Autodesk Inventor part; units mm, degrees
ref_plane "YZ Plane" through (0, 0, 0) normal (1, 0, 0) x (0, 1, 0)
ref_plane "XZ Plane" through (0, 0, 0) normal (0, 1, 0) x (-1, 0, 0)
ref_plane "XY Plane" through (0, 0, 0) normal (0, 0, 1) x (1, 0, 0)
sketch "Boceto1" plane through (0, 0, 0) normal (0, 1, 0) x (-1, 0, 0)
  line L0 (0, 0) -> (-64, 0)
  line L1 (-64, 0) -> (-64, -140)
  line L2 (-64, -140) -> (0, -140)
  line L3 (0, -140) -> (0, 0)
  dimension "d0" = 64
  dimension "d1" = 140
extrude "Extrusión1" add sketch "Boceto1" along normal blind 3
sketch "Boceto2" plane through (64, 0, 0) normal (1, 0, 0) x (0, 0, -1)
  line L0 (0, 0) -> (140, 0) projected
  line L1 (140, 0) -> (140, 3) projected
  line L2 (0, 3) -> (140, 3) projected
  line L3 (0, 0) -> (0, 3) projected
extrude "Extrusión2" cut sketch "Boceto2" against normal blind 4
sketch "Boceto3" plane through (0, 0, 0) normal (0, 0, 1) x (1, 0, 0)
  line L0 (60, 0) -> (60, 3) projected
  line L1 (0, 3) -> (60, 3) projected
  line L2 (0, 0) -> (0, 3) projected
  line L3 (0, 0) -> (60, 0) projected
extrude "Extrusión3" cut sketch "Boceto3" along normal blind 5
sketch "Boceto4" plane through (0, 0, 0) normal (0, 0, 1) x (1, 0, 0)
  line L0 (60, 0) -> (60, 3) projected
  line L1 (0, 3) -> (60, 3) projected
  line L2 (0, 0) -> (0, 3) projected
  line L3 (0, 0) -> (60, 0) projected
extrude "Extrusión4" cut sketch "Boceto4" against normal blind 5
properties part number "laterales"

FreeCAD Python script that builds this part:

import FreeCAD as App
import Part
import Sketcher

V = App.Vector


def add_polygon(sketch, points):
    """Adds a closed chain of lines whose ends are joined by coincident constraints."""
    first, n = sketch.GeometryCount, len(points)
    for a, b in zip(points, points[1:] + points[:1]):
        sketch.addGeometry(Part.LineSegment(App.Vector(*a, 0), App.Vector(*b, 0)), False)
    for i in range(n):
        sketch.addConstraint(Sketcher.Constraint("Coincident", first + i, 2, first + (i + 1) % n, 1))

doc = App.newDocument("Part")
params = doc.addObject("Spreadsheet::Sheet", "Params")
for row, (alias, value) in enumerate([
    ("sketch1_width", "64 mm"),
    ("sketch1_height", "140 mm"),
    ("pad1_length", "3 mm"),
    ("sketch2_width", "3 mm"),
    ("sketch2_height", "140 mm"),
    ("pocket1_length", "4 mm"),
    ("sketch3_width", "60 mm"),
    ("sketch3_height", "3 mm"),
    ("pocket2_length", "5 mm"),
    ("sketch4_width", "60 mm"),
    ("sketch4_height", "3 mm"),
    ("pocket3_length", "5 mm"),
], start=1):
    params.set(f"A{row}", alias)
    params.set(f"B{row}", "=" + value)
    params.setAlias(f"B{row}", alias)

body = doc.addObject("PartDesign::Body", "Body")

# Sketch on XZ plane
sketch1 = body.newObject("Sketcher::SketchObject", "Sketch")
sketch1.AttachmentSupport = (doc.getObject("XZ_Plane"), [""])
sketch1.MapMode = "FlatFace"
add_polygon(sketch1, [(0, -140), (0, 0), (64, 0), (64, -140)])  # lines 0-3
sketch1.addConstraint([
    Sketcher.Constraint("Vertical", 0),
    Sketcher.Constraint("Horizontal", 1),
    Sketcher.Constraint("Vertical", 2),
    Sketcher.Constraint("Horizontal", 3),
    Sketcher.Constraint("Coincident", 0, 2, -1, 1),
    Sketcher.Constraint("DistanceX", 1, 1, 1, 2, 64.0),
    Sketcher.Constraint("DistanceY", 0, 1, 0, 2, 140.0),
])
sketch1.setExpression("Constraints[9]", "Params.sketch1_width")
sketch1.setExpression("Constraints[10]", "Params.sketch1_height")
pad1 = body.newObject("PartDesign::Pad", "Pad")
pad1.Profile = sketch1
pad1.setExpression("Length", "Params.pad1_length")
pad1.Reversed = True

# Sketch on YZ plane
sketch2 = body.newObject("Sketcher::SketchObject", "Sketch001")
sketch2.AttachmentSupport = (doc.getObject("YZ_Plane"), [""])
sketch2.MapMode = "FlatFace"
sketch2.AttachmentOffset = App.Placement(V(0, 0, 64), App.Rotation())
add_polygon(sketch2, [(3, 0), (0, 0), (0, -140), (3, -140)])  # lines 0-3
sketch2.addConstraint([
    Sketcher.Constraint("Horizontal", 0),
    Sketcher.Constraint("Vertical", 1),
    Sketcher.Constraint("Horizontal", 2),
    Sketcher.Constraint("Vertical", 3),
    Sketcher.Constraint("Coincident", 0, 2, -1, 1),
    Sketcher.Constraint("DistanceX", 0, 2, 0, 1, 3.0),
    Sketcher.Constraint("DistanceY", 1, 2, 1, 1, 140.0),
])
sketch2.setExpression("Constraints[9]", "Params.sketch2_width")
sketch2.setExpression("Constraints[10]", "Params.sketch2_height")
pocket1 = body.newObject("PartDesign::Pocket", "Pocket")
pocket1.Profile = sketch2
pocket1.setExpression("Length", "Params.pocket1_length")

# Sketch on XY plane
sketch3 = body.newObject("Sketcher::SketchObject", "Sketch002")
sketch3.AttachmentSupport = (doc.getObject("XY_Plane"), [""])
sketch3.MapMode = "FlatFace"
add_polygon(sketch3, [(0, 0), (60, 0), (60, 3), (0, 3)])  # lines 0-3
sketch3.addConstraint([
    Sketcher.Constraint("Horizontal", 0),
    Sketcher.Constraint("Vertical", 1),
    Sketcher.Constraint("Horizontal", 2),
    Sketcher.Constraint("Vertical", 3),
    Sketcher.Constraint("Coincident", 3, 2, -1, 1),
    Sketcher.Constraint("DistanceX", 0, 1, 0, 2, 60.0),
    Sketcher.Constraint("DistanceY", 1, 1, 1, 2, 3.0),
])
sketch3.setExpression("Constraints[9]", "Params.sketch3_width")
sketch3.setExpression("Constraints[10]", "Params.sketch3_height")
pocket2 = body.newObject("PartDesign::Pocket", "Pocket001")
pocket2.Profile = sketch3
pocket2.setExpression("Length", "Params.pocket2_length")
pocket2.Reversed = True

# Sketch on XY plane
sketch4 = body.newObject("Sketcher::SketchObject", "Sketch003")
sketch4.AttachmentSupport = (doc.getObject("XY_Plane"), [""])
sketch4.MapMode = "FlatFace"
add_polygon(sketch4, [(0, 0), (60, 0), (60, 3), (0, 3)])  # lines 0-3
sketch4.addConstraint([
    Sketcher.Constraint("Horizontal", 0),
    Sketcher.Constraint("Vertical", 1),
    Sketcher.Constraint("Horizontal", 2),
    Sketcher.Constraint("Vertical", 3),
    Sketcher.Constraint("Coincident", 3, 2, -1, 1),
    Sketcher.Constraint("DistanceX", 0, 1, 0, 2, 60.0),
    Sketcher.Constraint("DistanceY", 1, 1, 1, 2, 3.0),
])
sketch4.setExpression("Constraints[9]", "Params.sketch4_width")
sketch4.setExpression("Constraints[10]", "Params.sketch4_height")
pocket3 = body.newObject("PartDesign::Pocket", "Pocket002")
pocket3.Profile = sketch4
pocket3.setExpression("Length", "Params.pocket3_length")

doc.recompute()
